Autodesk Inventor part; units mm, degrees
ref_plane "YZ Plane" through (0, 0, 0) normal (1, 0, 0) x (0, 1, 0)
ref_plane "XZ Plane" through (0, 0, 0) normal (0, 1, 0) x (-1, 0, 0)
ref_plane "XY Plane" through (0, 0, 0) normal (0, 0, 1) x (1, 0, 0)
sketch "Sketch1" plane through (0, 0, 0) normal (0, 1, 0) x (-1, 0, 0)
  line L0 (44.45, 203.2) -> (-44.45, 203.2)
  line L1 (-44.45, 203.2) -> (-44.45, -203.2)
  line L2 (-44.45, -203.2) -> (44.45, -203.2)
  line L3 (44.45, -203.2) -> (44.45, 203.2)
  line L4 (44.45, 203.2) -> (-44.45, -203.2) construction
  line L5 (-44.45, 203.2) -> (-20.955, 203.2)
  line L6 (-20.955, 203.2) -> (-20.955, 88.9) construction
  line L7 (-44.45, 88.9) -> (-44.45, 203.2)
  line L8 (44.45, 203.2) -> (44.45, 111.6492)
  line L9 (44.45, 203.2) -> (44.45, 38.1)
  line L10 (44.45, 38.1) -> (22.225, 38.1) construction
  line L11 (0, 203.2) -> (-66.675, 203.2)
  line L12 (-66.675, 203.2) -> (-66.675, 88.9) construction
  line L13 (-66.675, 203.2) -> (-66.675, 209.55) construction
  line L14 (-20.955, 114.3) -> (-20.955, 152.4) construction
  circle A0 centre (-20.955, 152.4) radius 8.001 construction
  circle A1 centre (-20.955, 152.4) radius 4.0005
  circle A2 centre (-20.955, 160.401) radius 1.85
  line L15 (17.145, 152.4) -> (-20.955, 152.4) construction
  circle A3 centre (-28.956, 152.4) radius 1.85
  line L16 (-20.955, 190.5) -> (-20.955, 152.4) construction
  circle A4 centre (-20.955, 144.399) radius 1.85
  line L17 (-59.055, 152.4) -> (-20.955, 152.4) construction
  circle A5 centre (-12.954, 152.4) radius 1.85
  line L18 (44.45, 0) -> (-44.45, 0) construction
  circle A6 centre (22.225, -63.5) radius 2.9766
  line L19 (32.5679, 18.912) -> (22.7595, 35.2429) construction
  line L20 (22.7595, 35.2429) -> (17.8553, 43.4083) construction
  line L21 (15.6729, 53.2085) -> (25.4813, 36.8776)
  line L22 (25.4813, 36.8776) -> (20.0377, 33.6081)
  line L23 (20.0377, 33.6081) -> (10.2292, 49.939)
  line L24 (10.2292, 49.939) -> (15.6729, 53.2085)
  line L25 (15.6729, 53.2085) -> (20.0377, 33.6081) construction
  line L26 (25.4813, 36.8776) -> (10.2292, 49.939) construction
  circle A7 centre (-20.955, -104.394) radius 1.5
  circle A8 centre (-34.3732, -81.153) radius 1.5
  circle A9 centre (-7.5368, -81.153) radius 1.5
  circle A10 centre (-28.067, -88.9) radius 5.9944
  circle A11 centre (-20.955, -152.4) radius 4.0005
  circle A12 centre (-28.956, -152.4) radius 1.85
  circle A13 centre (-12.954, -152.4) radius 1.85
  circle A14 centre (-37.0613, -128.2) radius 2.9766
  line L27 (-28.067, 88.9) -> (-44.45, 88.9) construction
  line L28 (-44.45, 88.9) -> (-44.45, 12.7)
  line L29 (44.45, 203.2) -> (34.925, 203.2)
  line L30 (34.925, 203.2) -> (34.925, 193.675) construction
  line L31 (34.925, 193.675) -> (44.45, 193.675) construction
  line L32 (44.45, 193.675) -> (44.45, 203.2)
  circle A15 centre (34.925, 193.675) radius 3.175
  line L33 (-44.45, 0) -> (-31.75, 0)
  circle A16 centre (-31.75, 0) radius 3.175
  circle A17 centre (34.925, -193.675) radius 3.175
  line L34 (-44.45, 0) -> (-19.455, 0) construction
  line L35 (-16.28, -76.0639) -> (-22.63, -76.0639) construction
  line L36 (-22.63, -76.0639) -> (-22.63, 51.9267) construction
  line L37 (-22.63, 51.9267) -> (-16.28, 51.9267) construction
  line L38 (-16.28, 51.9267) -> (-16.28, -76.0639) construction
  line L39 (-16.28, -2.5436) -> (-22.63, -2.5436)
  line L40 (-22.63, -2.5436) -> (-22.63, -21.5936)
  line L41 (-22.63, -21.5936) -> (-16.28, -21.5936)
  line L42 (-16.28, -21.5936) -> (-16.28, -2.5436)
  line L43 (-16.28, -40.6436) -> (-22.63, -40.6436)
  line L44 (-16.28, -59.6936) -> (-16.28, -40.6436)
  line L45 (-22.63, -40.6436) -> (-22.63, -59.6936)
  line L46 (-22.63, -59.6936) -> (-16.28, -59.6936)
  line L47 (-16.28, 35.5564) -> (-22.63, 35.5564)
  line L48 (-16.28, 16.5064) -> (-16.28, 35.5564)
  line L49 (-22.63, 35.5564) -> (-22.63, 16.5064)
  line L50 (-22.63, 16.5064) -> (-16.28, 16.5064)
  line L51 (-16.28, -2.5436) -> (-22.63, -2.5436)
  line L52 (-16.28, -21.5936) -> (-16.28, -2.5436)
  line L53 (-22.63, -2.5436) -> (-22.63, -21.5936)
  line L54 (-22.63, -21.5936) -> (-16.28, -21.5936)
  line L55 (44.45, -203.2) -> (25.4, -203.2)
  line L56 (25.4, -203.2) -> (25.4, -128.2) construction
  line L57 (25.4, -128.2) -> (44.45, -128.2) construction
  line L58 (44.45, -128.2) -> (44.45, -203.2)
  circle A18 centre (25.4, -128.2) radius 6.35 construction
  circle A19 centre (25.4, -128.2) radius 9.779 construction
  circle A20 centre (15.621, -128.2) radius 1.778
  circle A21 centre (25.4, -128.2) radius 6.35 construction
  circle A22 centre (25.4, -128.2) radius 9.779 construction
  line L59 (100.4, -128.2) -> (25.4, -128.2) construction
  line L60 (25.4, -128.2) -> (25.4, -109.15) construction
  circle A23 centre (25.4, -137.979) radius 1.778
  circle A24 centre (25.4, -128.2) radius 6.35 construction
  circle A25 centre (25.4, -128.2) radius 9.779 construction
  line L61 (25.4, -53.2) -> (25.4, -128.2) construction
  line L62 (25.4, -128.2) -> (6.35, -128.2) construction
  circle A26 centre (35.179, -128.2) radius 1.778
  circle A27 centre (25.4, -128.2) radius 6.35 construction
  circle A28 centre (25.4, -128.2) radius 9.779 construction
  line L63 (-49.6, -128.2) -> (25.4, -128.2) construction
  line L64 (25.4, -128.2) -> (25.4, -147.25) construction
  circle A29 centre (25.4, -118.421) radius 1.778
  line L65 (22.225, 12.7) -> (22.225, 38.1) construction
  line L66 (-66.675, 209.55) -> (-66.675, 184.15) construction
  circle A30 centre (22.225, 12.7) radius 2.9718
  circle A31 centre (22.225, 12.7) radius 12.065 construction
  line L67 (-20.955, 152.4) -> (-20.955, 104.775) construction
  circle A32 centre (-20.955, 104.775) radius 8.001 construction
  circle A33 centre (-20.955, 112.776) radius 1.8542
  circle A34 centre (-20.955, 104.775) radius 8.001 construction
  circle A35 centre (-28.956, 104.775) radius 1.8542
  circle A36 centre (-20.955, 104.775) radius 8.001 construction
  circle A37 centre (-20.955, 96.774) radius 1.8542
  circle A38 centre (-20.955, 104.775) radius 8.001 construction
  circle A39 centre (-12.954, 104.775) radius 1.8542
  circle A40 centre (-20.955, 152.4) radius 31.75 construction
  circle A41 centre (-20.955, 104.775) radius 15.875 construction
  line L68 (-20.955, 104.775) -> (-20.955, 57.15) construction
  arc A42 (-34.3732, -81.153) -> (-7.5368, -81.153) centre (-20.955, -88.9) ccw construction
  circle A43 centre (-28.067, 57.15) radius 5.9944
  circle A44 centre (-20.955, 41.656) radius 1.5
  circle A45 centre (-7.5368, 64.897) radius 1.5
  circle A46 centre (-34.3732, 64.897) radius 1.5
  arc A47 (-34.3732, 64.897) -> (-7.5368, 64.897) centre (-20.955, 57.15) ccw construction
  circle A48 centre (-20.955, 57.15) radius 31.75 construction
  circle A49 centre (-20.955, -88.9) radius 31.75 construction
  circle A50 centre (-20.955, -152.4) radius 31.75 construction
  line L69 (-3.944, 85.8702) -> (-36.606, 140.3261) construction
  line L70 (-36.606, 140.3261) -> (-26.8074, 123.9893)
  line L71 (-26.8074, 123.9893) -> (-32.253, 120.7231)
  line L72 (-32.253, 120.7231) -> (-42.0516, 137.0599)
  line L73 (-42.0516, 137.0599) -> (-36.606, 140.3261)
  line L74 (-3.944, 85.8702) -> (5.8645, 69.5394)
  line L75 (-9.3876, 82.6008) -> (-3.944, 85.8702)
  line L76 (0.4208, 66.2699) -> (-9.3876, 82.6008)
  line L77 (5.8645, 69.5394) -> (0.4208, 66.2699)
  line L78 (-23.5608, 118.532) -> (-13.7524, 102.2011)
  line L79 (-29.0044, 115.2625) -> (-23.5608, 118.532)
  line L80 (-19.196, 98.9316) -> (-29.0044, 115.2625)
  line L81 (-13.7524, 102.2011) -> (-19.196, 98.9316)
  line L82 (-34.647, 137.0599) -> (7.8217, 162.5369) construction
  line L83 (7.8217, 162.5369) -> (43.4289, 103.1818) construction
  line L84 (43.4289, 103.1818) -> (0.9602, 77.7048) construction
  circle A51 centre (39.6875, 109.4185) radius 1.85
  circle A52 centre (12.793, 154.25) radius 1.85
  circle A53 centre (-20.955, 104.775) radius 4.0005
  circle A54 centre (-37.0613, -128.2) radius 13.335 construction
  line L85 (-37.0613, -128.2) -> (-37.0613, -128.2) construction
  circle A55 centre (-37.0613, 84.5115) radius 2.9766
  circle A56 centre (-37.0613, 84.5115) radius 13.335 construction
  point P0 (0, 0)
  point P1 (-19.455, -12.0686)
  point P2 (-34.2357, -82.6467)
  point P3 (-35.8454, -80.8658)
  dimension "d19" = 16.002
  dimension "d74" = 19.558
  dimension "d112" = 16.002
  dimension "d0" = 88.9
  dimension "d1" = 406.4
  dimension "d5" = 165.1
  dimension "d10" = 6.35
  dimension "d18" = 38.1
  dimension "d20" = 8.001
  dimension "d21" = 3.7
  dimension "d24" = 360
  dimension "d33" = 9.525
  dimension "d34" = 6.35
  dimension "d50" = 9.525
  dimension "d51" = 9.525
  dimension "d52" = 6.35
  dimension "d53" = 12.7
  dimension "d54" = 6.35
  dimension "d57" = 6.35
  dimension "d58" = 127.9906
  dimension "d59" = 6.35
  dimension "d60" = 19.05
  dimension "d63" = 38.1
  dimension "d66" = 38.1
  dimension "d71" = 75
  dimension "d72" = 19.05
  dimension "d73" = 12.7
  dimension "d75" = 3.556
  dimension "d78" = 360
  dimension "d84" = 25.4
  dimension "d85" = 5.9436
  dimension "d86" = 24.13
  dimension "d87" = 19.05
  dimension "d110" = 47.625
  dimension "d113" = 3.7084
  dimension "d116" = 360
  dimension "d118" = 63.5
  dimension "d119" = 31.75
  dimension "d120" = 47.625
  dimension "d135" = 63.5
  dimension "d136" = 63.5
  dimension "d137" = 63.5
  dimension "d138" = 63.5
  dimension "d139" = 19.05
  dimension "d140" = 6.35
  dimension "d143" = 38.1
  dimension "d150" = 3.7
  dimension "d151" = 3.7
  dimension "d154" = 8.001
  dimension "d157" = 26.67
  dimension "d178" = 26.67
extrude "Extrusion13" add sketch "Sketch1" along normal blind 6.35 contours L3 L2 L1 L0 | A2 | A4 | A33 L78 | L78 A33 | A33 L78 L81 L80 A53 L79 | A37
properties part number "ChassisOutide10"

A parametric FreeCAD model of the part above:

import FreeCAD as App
import Part
import Sketcher

V = App.Vector
Q = App.Units.Quantity


def add_polygon(sketch, points):
    """Adds a closed chain of lines whose ends are joined by coincident constraints."""
    first, n = sketch.GeometryCount, len(points)
    for a, b in zip(points, points[1:] + points[:1]):
        sketch.addGeometry(Part.LineSegment(App.Vector(*a, 0), App.Vector(*b, 0)), False)
    for i in range(n):
        sketch.addConstraint(Sketcher.Constraint("Coincident", first + i, 2, first + (i + 1) % n, 1))

doc = App.newDocument("Part")
body = doc.addObject("PartDesign::Body", "Body")

# Sketch on XZ plane
sketch1 = doc.addObject("Sketcher::SketchObject", "Sketch")
body.addObject(sketch1)
sketch1.AttachmentSupport = (doc.XZ_Plane, [""])
sketch1.MapMode = "FlatFace"
add_polygon(sketch1, [(-44.5, 203.2), (44.5, 203.2), (44.5, 0), (44.5, -203.2), (-44.5, -203.2)])  # lines 0-4
sketch1.addGeometry(Part.Circle(V(29, -152.4, 0), V(0, 0, 1), 1.9), False)  # 5
sketch1.addGeometry(Part.Circle(V(37.1, -128.2, 0), V(0, 0, 1), 3), False)  # 6
sketch1.addGeometry(Part.Circle(V(21, -152.4, 0), V(0, 0, 1), 4), False)  # 7
sketch1.addGeometry(Part.Circle(V(13, -152.4, 0), V(0, 0, 1), 1.9), False)  # 8
sketch1.addGeometry(Part.Circle(V(21, -104.4, 0), V(0, 0, 1), 1.5), False)  # 9
sketch1.addGeometry(Part.Circle(V(34.4, -81.2, 0), V(0, 0, 1), 1.5), False)  # 10
sketch1.addGeometry(Part.Circle(V(28.1, -88.9, 0), V(0, 0, 1), 6), False)  # 11
sketch1.addGeometry(Part.Circle(V(31.8, 0, 0), V(0, 0, 1), 3.2), False)  # 12
sketch1.addGeometry(Part.Circle(V(7.5, -81.2, 0), V(0, 0, 1), 1.5), False)  # 13
add_polygon(sketch1, [(22.6, -40.6), (16.3, -40.6), (16.3, -59.7), (22.6, -59.7)])  # lines 14-17
add_polygon(sketch1, [(22.6, -2.5), (16.3, -2.5), (16.3, -21.6), (22.6, -21.6)])  # lines 18-21
sketch1.addGeometry(Part.Circle(V(-15.6, -128.2, 0), V(0, 0, 1), 1.8), False)  # 22
sketch1.addGeometry(Part.Circle(V(-34.9, -193.7, 0), V(0, 0, 1), 3.2), False)  # 23
sketch1.addGeometry(Part.Circle(V(-25.4, -138, 0), V(0, 0, 1), 1.8), False)  # 24
sketch1.addGeometry(Part.Circle(V(-25.4, -118.4, 0), V(0, 0, 1), 1.8), False)  # 25
sketch1.addGeometry(Part.Circle(V(-35.2, -128.2, 0), V(0, 0, 1), 1.8), False)  # 26
sketch1.addGeometry(Part.Circle(V(-22.2, -63.5, 0), V(0, 0, 1), 3), False)  # 27
sketch1.addGeometry(Part.Circle(V(34.4, 64.9, 0), V(0, 0, 1), 1.5), False)  # 28
sketch1.addGeometry(Part.Circle(V(37.1, 84.5, 0), V(0, 0, 1), 3), False)  # 29
sketch1.addGeometry(Part.Circle(V(28.1, 57.1, 0), V(0, 0, 1), 6), False)  # 30
add_polygon(sketch1, [(22.6, 35.6), (16.3, 35.6), (16.3, 16.5), (22.6, 16.5)])  # lines 31-34
sketch1.addGeometry(Part.Circle(V(21, 41.7, 0), V(0, 0, 1), 1.5), False)  # 35
sketch1.addGeometry(Part.Circle(V(7.5, 64.9, 0), V(0, 0, 1), 1.5), False)  # 36
add_polygon(sketch1, [(9.4, 82.6), (3.9, 85.9), (-5.9, 69.5), (-0.4, 66.3)])  # lines 37-40
add_polygon(sketch1, [(42.1, 137.1), (36.6, 140.3), (26.8, 124), (32.3, 120.7)])  # lines 41-44
sketch1.addGeometry(Part.Circle(V(29, 104.8, 0), V(0, 0, 1), 1.9), False)  # 45
sketch1.addGeometry(Part.Circle(V(29, 152.4, 0), V(0, 0, 1), 1.9), False)  # 46
sketch1.addGeometry(Part.Circle(V(21, 104.8, 0), V(0, 0, 1), 4), False)  # 47
sketch1.addGeometry(Part.Circle(V(13, 104.8, 0), V(0, 0, 1), 1.9), False)  # 48
sketch1.addGeometry(Part.Circle(V(21, 152.4, 0), V(0, 0, 1), 4), False)  # 49
sketch1.addGeometry(Part.Circle(V(13, 152.4, 0), V(0, 0, 1), 1.9), False)  # 50
add_polygon(sketch1, [(-10.2, 49.9), (-15.7, 53.2), (-25.5, 36.9), (-20, 33.6)])  # lines 51-54
sketch1.addGeometry(Part.Circle(V(-22.2, 12.7, 0), V(0, 0, 1), 3), False)  # 55
sketch1.addGeometry(Part.Circle(V(-12.8, 154.2, 0), V(0, 0, 1), 1.9), False)  # 56
sketch1.addGeometry(Part.Circle(V(-39.7, 109.4, 0), V(0, 0, 1), 1.9), False)  # 57
sketch1.addGeometry(Part.Circle(V(-34.9, 193.7, 0), V(0, 0, 1), 3.2), False)  # 58
sketch1.addConstraint([
    Sketcher.Constraint("Horizontal", 0),
    Sketcher.Constraint("Vertical", 1),
    Sketcher.Constraint("Vertical", 2),
    Sketcher.Constraint("Horizontal", 3),
    Sketcher.Constraint("Vertical", 4),
    Sketcher.Constraint("Horizontal", 14),
    Sketcher.Constraint("Vertical", 15),
    Sketcher.Constraint("Horizontal", 16),
    Sketcher.Constraint("Vertical", 17),
    Sketcher.Constraint("Horizontal", 18),
    Sketcher.Constraint("Vertical", 19),
    Sketcher.Constraint("Horizontal", 20),
    Sketcher.Constraint("Vertical", 21),
    Sketcher.Constraint("Horizontal", 31),
    Sketcher.Constraint("Vertical", 32),
    Sketcher.Constraint("Horizontal", 33),
    Sketcher.Constraint("Vertical", 34),
    Sketcher.Constraint("Equal", 5, 8),
    Sketcher.Constraint("Equal", 9, 10),
    Sketcher.Constraint("Equal", 10, 13),
    Sketcher.Constraint("Equal", 12, 23),
    Sketcher.Constraint("Equal", 22, 24),
    Sketcher.Constraint("Equal", 24, 25),
    Sketcher.Constraint("Equal", 25, 26),
    Sketcher.Constraint("Equal", 6, 27),
    Sketcher.Constraint("Equal", 13, 28),
    Sketcher.Constraint("Equal", 27, 29),
    Sketcher.Constraint("Equal", 11, 30),
    Sketcher.Constraint("Equal", 28, 35),
    Sketcher.Constraint("Equal", 35, 36),
    Sketcher.Constraint("Equal", 8, 46),
    Sketcher.Constraint("Equal", 7, 47),
    Sketcher.Constraint("Equal", 45, 48),
    Sketcher.Constraint("Equal", 47, 49),
    Sketcher.Constraint("Equal", 46, 50),
    Sketcher.Constraint("Equal", 50, 56),
    Sketcher.Constraint("Equal", 56, 57),
    Sketcher.Constraint("Equal", 23, 58),
    Sketcher.Constraint("Symmetric", 0, 2, 3, 2, -1, 1),
    Sketcher.Constraint("Symmetric", 5, 3, 46, 3, -1),
    Sketcher.Constraint("Symmetric", 7, 3, 49, 3, -1),
    Sketcher.Constraint("Symmetric", 8, 3, 50, 3, -1),
    Sketcher.Constraint("Symmetric", 23, 3, 58, 3, -1),
    Sketcher.Constraint("PointOnObject", 12, 3, -1),
    Sketcher.Constraint("PointOnObject", 1, 2, -1),
    Sketcher.Constraint("Perpendicular", 37, 38),
    Sketcher.Constraint("Perpendicular", 38, 39),
    Sketcher.Constraint("Perpendicular", 39, 40),
    Sketcher.Constraint("Perpendicular", 41, 42),
    Sketcher.Constraint("Perpendicular", 42, 43),
    Sketcher.Constraint("Perpendicular", 43, 44),
    Sketcher.Constraint("Perpendicular", 40, 51),
    Sketcher.Constraint("Perpendicular", 51, 52),
    Sketcher.Constraint("Perpendicular", 52, 53),
    Sketcher.Constraint("Perpendicular", 53, 54),
    Sketcher.Constraint("Horizontal", 5, 3, 7, 3),
    Sketcher.Constraint("Horizontal", 7, 3, 8, 3),
    Sketcher.Constraint("Horizontal", 10, 3, 13, 3),
    Sketcher.Constraint("Horizontal", 6, 3, 22, 3),
    Sketcher.Constraint("Horizontal", 22, 3, 26, 3),
    Sketcher.Constraint("Horizontal", 28, 3, 36, 3),
    Sketcher.Constraint("Horizontal", 45, 3, 47, 3),
    Sketcher.Constraint("Horizontal", 47, 3, 48, 3),
    Sketcher.Constraint("Vertical", 7, 3, 9, 3),
    Sketcher.Constraint("Vertical", 24, 3, 25, 3),
    Sketcher.Constraint("Vertical", 10, 3, 28, 3),
    Sketcher.Constraint("Vertical", 6, 3, 29, 3),
    Sketcher.Constraint("Vertical", 11, 3, 30, 3),
    Sketcher.Constraint("Vertical", 9, 3, 35, 3),
    Sketcher.Constraint("Vertical", 13, 3, 36, 3),
    Sketcher.Constraint("Vertical", 5, 3, 45, 3),
    Sketcher.Constraint("Vertical", 35, 3, 47, 3),
    Sketcher.Constraint("Vertical", 8, 3, 48, 3),
    Sketcher.Constraint("Vertical", 27, 3, 55, 3),
    Sketcher.Constraint("Vertical", 15, 2, 18, 2),
    Sketcher.Constraint("Vertical", 17, 2, 20, 2),
    Sketcher.Constraint("Vertical", 19, 2, 31, 2),
    Sketcher.Constraint("Vertical", 21, 2, 33, 2),
    Sketcher.Constraint("Equal", 17, 19),
    Sketcher.Constraint("Equal", 21, 32),
    Sketcher.Constraint("Equal", 39, 41),
    Sketcher.Constraint("Equal", 40, 42),
    Sketcher.Constraint("Equal", 43, 51),
    Sketcher.Constraint("Equal", 44, 52),
    Sketcher.Constraint("Diameter", 12, Q("0.25 in")),
    Sketcher.Constraint("Diameter", 22, Q("0.14 in")),
    Sketcher.Constraint("DistanceY", 4, 1, 4, 2, Q("16 in")),
    Sketcher.Constraint("Diameter", 7, Q("0.315 in")),
    Sketcher.Constraint("Diameter", 45, Q("0.146 in")),
    Sketcher.Constraint("Diameter", 55, Q("0.234 in")),
    Sketcher.Constraint("DistanceX", 0, 1, 0, 2, Q("3.5 in")),
    Sketcher.Constraint("DistanceX", 24, 3, -1, 1, Q("1 in")),
    Sketcher.Constraint("DistanceY", 11, 3, 27, 3, Q("1 in")),
    Sketcher.Constraint("DistanceX", 14, 2, 14, 1, Q("0.25 in")),
    Sketcher.Constraint("DistanceY", 15, 2, 15, 1, Q("0.75 in")),
    Sketcher.Constraint("DistanceY", 11, 3, -1, 1, Q("3.5 in")),
    Sketcher.Constraint("DistanceY", -1, 1, 55, 3, Q("0.5 in")),
    Sketcher.Constraint("DistanceY", 5, 3, 11, 3, Q("2.5 in")),
    Sketcher.Constraint("DistanceX", 12, 3, 1, 2, Q("0.5 in")),
    Sketcher.Constraint("DistanceY", 14, 2, 18, 2, Q("1.5 in")),
    Sketcher.Constraint("DistanceY", 18, 2, 31, 2, Q("1.5 in")),
    Sketcher.Constraint("Distance", 37, Q("0.25 in")),
    Sketcher.Constraint("Distance", 38, Q("0.75 in")),
    Sketcher.Constraint("Diameter", 5, 3.7),
    Sketcher.Constraint("DistanceX", 8, 3, 5, 3, Q("0.63 in")),
    Sketcher.Constraint("DistanceY", 24, 3, 25, 3, Q("0.77 in")),
    Sketcher.Constraint("DistanceX", 26, 3, 22, 3, Q("0.77 in")),
    Sketcher.Constraint("Diameter", 6, Q("0.234378 in")),
    Sketcher.Constraint("Diameter", 11, Q("0.472 in")),
    Sketcher.Constraint("DistanceX", 7, 3, 5, 3, Q("0.315 in")),
    Sketcher.Constraint("DistanceX", 23, 3, 24, 3, Q("0.375 in")),
    Sketcher.Constraint("DistanceY", 30, 3, 45, 3, Q("1.875 in")),
    Sketcher.Constraint("DistanceY", 45, 3, 46, 3, Q("1.875 in")),
    Sketcher.Constraint("DistanceY", 58, 3, 0, 2, Q("0.375 in")),
    Sketcher.Constraint("Diameter", 9, Q("0.1181 in")),
    Sketcher.Constraint("DistanceX", 23, 3, 7, 3, Q("2.2 in")),
    Sketcher.Constraint("DistanceX", 27, 3, 9, 3, Q("1.7 in")),
    Sketcher.Constraint("DistanceY", 9, 3, -1, 1, Q("4.11 in")),
    Sketcher.Constraint("DistanceY", -1, 1, 35, 3, Q("1.64 in")),
    Sketcher.Constraint("Angle", 37, Q("149.0112 deg")),
    Sketcher.Constraint("DistanceX", 9, 3, 11, 3, Q("0.28 in")),
    Sketcher.Constraint("DistanceX", 22, 3, 9, 3, Q("1.44 in")),
    Sketcher.Constraint("DistanceY", 10, 3, 28, 3, Q("5.75 in")),
    Sketcher.Constraint("DistanceY", 28, 3, 45, 3, Q("1.57 in")),
    Sketcher.Constraint("DistanceY", 2, 2, 6, 3, 75.0),
    Sketcher.Constraint("DistanceX", 57, 3, -1, 1, Q("1.5625 in")),
    Sketcher.Constraint("DistanceY", -1, 1, 40, 2, Q("3.252 in")),
    Sketcher.Constraint("DistanceY", 24, 3, 22, 3, Q("0.385 in")),
    Sketcher.Constraint("DistanceX", 51, 2, 31, 2, Q("1.258 in")),
    Sketcher.Constraint("DistanceX", -1, 1, 6, 3, Q("1.4591 in")),
    Sketcher.Constraint("DistanceX", -1, 1, 40, 2, Q("0.3696 in")),
    Sketcher.Constraint("DistanceX", -1, 1, 42, 2, Q("1.0554 in")),
    Sketcher.Constraint("DistanceX", -1, 1, 43, 2, Q("1.2698 in")),
    Sketcher.Constraint("DistanceX", 52, 2, -1, 1, Q("1.0032 in")),
    Sketcher.Constraint("DistanceY", -1, 1, 54, 2, Q("1.9661 in")),
    Sketcher.Constraint("DistanceY", 29, 3, 37, 2, Q("0.0535 in")),
    Sketcher.Constraint("DistanceX", 38, 2, 36, 3, Q("0.5276 in")),
    Sketcher.Constraint("DistanceY", 53, 2, 31, 2, Q("0.0767 in")),
    Sketcher.Constraint("DistanceX", -1, 1, 10, 3, 34.3732),
    Sketcher.Constraint("DistanceX", 56, 3, -1, 1, 12.793),
    Sketcher.Constraint("DistanceY", -1, 1, 56, 3, 154.25),
    Sketcher.Constraint("DistanceY", -1, 1, 57, 3, 109.4185),
    Sketcher.Constraint("DistanceY", -1, 1, 41, 2, 140.326),
])
pad1 = doc.addObject("PartDesign::Pad", "Pad")
body.addObject(pad1)
pad1.Profile = sketch1
pad1.Length = Q("0.25 in")
pad1.Reversed = True

doc.recompute()
